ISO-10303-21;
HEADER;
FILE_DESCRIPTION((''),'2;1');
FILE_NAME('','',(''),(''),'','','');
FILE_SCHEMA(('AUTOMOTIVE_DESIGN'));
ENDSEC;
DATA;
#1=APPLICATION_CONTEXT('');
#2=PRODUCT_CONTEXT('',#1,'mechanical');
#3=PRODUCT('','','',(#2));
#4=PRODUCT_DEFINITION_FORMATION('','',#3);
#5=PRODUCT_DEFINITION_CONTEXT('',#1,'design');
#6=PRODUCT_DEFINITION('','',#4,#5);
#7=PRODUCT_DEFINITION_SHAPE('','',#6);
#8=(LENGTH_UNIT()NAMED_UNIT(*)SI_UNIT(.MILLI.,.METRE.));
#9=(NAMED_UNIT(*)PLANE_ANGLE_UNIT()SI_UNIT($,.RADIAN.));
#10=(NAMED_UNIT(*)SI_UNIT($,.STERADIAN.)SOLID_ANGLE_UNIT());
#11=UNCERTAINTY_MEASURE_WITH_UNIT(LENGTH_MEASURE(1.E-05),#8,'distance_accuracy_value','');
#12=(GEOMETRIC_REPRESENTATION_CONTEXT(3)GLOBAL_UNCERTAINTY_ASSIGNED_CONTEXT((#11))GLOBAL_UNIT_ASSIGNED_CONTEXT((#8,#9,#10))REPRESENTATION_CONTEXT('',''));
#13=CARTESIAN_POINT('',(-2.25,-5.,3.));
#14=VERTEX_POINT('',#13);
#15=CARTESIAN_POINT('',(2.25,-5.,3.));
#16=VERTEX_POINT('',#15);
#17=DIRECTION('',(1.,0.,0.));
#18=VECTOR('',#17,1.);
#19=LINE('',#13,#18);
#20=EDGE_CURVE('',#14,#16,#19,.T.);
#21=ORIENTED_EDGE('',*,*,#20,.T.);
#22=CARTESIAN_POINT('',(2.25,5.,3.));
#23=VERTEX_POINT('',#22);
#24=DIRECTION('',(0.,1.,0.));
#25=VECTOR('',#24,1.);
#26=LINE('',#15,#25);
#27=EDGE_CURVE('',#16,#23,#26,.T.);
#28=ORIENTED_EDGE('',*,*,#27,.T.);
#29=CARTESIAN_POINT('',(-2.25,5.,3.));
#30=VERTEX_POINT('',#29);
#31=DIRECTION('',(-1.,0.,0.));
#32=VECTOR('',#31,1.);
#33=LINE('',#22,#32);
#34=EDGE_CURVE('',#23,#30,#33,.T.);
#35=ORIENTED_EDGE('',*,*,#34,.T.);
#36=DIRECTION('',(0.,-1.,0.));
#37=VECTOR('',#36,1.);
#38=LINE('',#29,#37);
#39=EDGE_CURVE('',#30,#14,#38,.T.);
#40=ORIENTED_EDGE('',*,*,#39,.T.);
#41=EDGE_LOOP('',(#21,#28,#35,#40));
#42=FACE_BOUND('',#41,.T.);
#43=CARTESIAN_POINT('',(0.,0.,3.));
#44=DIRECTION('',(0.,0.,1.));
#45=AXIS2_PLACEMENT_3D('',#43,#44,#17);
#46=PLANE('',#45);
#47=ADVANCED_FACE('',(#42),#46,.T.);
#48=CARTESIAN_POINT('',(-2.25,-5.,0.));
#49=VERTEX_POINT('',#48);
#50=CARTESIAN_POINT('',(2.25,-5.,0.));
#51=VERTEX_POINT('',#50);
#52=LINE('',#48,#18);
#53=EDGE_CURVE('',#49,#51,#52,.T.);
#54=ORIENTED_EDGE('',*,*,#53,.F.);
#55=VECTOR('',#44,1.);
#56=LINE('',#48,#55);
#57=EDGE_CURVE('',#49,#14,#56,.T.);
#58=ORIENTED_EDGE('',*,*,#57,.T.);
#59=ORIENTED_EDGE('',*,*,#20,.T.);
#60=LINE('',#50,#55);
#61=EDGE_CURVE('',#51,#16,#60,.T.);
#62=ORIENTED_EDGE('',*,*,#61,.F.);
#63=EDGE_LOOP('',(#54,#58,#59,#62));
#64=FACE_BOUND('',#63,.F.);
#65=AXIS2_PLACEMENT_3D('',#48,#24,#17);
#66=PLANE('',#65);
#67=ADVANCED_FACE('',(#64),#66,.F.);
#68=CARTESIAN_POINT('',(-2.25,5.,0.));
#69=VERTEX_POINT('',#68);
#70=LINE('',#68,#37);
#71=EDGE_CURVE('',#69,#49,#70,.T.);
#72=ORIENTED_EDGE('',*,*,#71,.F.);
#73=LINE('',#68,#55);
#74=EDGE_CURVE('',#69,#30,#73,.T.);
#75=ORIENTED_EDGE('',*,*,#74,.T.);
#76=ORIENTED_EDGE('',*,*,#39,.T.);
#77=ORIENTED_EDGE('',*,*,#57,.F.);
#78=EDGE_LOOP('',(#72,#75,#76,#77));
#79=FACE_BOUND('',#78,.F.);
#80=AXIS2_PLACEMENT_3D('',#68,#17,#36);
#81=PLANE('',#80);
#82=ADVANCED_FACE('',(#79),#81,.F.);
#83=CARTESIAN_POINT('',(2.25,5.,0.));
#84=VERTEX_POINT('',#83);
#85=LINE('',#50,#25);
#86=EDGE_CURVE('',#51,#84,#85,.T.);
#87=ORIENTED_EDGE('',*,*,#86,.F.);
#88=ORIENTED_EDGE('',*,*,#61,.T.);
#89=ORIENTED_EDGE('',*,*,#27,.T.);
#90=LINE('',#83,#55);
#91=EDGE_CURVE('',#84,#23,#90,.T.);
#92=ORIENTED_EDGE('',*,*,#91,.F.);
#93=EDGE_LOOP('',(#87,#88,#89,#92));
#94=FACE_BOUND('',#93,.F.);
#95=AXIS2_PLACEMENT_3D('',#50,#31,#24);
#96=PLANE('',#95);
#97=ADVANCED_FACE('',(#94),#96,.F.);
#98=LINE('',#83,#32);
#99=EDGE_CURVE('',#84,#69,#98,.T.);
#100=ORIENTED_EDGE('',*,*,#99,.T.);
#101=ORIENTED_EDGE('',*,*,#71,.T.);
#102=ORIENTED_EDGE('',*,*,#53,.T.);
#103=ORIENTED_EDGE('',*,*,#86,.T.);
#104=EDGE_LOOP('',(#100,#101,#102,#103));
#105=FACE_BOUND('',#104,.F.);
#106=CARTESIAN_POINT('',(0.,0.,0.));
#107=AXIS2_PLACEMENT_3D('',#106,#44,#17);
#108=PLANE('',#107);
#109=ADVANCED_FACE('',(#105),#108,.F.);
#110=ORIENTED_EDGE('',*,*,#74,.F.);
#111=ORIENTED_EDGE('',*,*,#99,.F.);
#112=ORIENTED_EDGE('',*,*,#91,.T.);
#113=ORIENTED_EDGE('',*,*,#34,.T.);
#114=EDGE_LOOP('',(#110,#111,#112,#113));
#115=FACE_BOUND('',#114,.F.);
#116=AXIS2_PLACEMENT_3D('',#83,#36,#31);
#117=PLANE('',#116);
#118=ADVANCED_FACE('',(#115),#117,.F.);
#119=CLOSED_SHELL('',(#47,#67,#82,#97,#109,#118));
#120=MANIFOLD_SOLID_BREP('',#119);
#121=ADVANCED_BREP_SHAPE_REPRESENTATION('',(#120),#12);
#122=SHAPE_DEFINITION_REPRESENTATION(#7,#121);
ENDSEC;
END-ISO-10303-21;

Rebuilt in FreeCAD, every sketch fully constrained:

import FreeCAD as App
import Part
import Sketcher
Q = App.Units.Quantity

doc = App.newDocument("Part")
body = doc.addObject("PartDesign::Body", "Body")

# Sketch on XY plane
sketch1 = doc.addObject("Sketcher::SketchObject", "Sketch")
body.addObject(sketch1)
sketch1.AttachmentSupport = (doc.XY_Plane, [""])
sketch1.MapMode = "FlatFace"
sketch1.addGeometry([
    Part.LineSegment(App.Vector(-2.2, 5, 0), App.Vector(-2.2, -5, 0)),
    Part.LineSegment(App.Vector(-2.2, -5, 0), App.Vector(2.2, -5, 0)),
    Part.LineSegment(App.Vector(2.2, -5, 0), App.Vector(2.2, 5, 0)),
    Part.LineSegment(App.Vector(2.2, 5, 0), App.Vector(-2.2, 5, 0)),
], False)
sketch1.addConstraint([
    Sketcher.Constraint("Coincident", 0, 2, 1, 1),
    Sketcher.Constraint("Coincident", 1, 2, 2, 1),
    Sketcher.Constraint("Coincident", 2, 2, 3, 1),
    Sketcher.Constraint("Coincident", 3, 2, 0, 1),
    Sketcher.Constraint("Vertical", 0),
    Sketcher.Constraint("Horizontal", 1),
    Sketcher.Constraint("Vertical", 2),
    Sketcher.Constraint("Horizontal", 3),
    Sketcher.Constraint("Symmetric", 0, 2, 2, 2, -1, 1),
    Sketcher.Constraint("DistanceY", 0, 2, 0, 1, Q("10 mm")),
    Sketcher.Constraint("DistanceX", 1, 1, 1, 2, Q("4.5 mm")),
])
pad1 = doc.addObject("PartDesign::Pad", "Pad")
body.addObject(pad1)
pad1.Profile = sketch1
pad1.Length = 3

doc.recompute()
